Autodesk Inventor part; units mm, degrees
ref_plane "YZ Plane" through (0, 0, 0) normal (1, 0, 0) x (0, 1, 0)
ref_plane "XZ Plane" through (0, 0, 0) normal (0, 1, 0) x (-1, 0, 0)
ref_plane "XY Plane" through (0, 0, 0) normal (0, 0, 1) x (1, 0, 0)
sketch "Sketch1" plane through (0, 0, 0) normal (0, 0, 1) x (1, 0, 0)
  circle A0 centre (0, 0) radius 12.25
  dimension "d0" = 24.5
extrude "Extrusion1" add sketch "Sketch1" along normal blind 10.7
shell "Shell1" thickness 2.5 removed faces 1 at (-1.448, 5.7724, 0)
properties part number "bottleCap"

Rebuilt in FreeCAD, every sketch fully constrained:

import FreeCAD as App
import Part
import Sketcher

V = App.Vector


def faces_at(feature, points):
    """Names of the faces that lie closest to the given points."""
    faces = feature.Shape.Faces
    near = lambda p: min(range(len(faces)), key=lambda i: faces[i].distToShape(Part.Vertex(*p))[0])
    return sorted({f"Face{near(p) + 1}" for p in points})

doc = App.newDocument("Part")
body = doc.addObject("PartDesign::Body", "Body")

# Sketch on XY plane
sketch1 = body.newObject("Sketcher::SketchObject", "Sketch")
sketch1.AttachmentSupport = (doc.getObject("XY_Plane"), [""])
sketch1.MapMode = "FlatFace"
sketch1.addGeometry(Part.Circle(V(0, 0, 0), V(0, 0, 1), 12), False)
sketch1.addConstraint(Sketcher.Constraint("Coincident", 0, 3, -1, 1))
sketch1.addConstraint(Sketcher.Constraint("Diameter", 0, 24.5))
pad1 = body.newObject("PartDesign::Pad", "Pad")
pad1.Profile = sketch1
pad1.Length = 10.7
doc.recompute()

thickness = body.newObject("PartDesign::Thickness", "Thickness")
thickness.Base = (pad1, faces_at(pad1, [(-1.448, 5.772, 0)]))
thickness.Value = 2.5
thickness.Reversed = True
thickness.Join = "Intersection"

doc.recompute()
